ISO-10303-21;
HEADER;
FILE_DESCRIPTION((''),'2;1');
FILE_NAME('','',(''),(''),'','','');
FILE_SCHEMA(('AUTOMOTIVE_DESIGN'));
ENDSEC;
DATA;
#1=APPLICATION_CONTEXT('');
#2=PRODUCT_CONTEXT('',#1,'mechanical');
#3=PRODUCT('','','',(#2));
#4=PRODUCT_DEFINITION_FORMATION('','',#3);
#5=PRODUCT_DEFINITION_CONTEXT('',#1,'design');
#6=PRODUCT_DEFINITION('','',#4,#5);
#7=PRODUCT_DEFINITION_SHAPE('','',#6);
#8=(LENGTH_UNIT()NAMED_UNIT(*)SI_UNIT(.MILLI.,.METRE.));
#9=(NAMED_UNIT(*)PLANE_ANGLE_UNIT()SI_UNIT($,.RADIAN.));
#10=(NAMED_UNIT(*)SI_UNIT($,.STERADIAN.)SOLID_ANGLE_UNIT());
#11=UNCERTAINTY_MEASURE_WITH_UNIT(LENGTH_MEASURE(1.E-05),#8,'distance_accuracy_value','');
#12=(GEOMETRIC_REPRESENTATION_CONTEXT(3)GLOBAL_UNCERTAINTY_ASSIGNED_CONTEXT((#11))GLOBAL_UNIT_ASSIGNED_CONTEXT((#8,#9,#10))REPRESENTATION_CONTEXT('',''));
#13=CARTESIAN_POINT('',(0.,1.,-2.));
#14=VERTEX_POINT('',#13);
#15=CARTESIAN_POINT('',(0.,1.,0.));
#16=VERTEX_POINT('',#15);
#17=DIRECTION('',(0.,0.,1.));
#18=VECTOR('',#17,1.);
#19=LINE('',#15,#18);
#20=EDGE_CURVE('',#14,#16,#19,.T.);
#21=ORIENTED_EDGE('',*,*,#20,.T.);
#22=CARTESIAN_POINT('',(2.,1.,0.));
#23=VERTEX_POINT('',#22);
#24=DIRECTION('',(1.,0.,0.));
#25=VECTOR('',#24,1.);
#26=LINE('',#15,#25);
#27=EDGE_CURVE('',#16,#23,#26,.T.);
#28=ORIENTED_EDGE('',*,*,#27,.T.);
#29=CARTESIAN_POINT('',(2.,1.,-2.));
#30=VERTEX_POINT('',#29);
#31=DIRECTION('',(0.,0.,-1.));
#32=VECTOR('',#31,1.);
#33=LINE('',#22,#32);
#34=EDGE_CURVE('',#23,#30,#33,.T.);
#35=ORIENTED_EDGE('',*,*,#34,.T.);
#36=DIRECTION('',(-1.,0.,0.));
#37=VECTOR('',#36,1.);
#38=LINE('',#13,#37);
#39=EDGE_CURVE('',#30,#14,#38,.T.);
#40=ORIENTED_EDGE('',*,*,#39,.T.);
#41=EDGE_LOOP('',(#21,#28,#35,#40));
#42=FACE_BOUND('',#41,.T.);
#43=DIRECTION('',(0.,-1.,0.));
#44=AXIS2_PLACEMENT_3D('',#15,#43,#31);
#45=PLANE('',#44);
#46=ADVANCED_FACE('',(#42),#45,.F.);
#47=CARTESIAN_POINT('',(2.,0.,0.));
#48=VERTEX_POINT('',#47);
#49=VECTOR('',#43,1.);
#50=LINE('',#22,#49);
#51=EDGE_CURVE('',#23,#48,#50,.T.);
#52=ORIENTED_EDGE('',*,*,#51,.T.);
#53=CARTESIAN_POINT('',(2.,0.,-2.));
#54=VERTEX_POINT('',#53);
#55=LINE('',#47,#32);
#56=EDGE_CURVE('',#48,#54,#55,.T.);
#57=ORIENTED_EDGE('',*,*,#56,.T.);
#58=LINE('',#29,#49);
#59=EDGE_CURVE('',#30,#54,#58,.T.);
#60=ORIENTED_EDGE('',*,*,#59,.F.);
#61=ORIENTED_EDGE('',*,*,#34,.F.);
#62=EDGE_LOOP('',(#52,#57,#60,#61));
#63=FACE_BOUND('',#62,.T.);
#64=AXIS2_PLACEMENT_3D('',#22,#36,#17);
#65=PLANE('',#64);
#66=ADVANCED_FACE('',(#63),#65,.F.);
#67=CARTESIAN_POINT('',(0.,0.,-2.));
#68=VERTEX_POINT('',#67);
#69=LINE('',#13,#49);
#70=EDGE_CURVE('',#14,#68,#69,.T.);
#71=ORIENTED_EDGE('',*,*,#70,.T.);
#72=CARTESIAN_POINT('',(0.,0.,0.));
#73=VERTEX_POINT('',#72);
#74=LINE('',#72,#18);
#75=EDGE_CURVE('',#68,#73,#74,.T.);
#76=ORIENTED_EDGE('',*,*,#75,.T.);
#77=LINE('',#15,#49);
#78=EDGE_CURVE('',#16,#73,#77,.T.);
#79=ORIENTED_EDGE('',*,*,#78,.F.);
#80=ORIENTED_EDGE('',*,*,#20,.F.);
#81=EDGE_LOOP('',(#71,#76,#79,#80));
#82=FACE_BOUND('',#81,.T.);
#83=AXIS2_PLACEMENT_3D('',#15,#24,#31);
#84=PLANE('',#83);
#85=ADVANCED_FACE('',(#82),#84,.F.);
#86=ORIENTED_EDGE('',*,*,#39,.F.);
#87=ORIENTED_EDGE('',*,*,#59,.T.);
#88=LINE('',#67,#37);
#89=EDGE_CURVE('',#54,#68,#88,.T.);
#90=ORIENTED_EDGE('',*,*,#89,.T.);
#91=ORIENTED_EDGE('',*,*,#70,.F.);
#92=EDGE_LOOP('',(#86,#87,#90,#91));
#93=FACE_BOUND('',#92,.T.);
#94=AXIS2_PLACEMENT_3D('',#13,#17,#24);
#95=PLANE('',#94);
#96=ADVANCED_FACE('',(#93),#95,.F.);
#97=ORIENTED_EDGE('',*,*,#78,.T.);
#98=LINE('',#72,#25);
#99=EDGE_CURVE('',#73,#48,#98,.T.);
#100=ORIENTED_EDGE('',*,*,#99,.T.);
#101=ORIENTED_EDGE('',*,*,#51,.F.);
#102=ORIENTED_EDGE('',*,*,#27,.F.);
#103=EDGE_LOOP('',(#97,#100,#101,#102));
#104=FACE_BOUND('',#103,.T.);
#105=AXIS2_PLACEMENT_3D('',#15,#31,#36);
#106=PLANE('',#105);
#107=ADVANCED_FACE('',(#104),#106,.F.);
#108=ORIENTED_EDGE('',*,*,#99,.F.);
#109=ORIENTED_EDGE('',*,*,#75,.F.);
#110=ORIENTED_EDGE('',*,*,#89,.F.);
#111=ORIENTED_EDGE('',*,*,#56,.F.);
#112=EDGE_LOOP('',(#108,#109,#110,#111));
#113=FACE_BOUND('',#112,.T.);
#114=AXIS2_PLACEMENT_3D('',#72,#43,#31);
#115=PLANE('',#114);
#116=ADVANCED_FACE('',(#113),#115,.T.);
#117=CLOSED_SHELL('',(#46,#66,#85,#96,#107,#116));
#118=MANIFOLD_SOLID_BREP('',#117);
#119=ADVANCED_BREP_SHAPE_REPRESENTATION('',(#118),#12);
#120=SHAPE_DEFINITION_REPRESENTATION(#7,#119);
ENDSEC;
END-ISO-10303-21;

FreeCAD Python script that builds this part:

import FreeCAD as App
import Part
import Sketcher

V = App.Vector
Q = App.Units.Quantity


def add_polygon(sketch, points):
    """Adds a closed chain of lines whose ends are joined by coincident constraints."""
    first, n = sketch.GeometryCount, len(points)
    for a, b in zip(points, points[1:] + points[:1]):
        sketch.addGeometry(Part.LineSegment(App.Vector(*a, 0), App.Vector(*b, 0)), False)
    for i in range(n):
        sketch.addConstraint(Sketcher.Constraint("Coincident", first + i, 2, first + (i + 1) % n, 1))

doc = App.newDocument("Part")
body = doc.addObject("PartDesign::Body", "Body")

# Sketch on XZ plane
sketch1 = body.newObject("Sketcher::SketchObject", "Sketch")
sketch1.AttachmentSupport = (doc.getObject("XZ_Plane"), [""])
sketch1.MapMode = "FlatFace"
add_polygon(sketch1, [(0, -2), (0, 0), (2, 0), (2, -2)])  # lines 0-3
sketch1.addConstraint(Sketcher.Constraint("Vertical", 0))
sketch1.addConstraint(Sketcher.Constraint("Horizontal", 1))
sketch1.addConstraint(Sketcher.Constraint("Vertical", 2))
sketch1.addConstraint(Sketcher.Constraint("Horizontal", 3))
sketch1.addConstraint(Sketcher.Constraint("Coincident", 0, 2, -1, 1))
sketch1.addConstraint(Sketcher.Constraint("Equal", 3, 0))
sketch1.addConstraint(Sketcher.Constraint("DistanceX", 1, 1, 1, 2, Q("2 mm")))
pad1 = body.newObject("PartDesign::Pad", "Pad")
pad1.Profile = sketch1
pad1.Length = 1
pad1.Reversed = True

doc.recompute()
